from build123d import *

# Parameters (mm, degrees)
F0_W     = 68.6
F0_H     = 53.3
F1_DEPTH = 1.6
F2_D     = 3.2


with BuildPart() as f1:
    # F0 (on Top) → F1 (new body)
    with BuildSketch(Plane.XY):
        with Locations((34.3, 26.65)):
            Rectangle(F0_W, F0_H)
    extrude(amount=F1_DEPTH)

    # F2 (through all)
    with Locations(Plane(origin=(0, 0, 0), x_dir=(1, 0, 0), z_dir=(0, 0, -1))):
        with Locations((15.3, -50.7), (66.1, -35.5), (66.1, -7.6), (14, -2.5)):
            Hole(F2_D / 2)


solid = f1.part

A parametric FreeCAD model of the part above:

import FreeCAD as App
import Part
import Sketcher
Q = App.Units.Quantity

doc = App.newDocument("Part")
body = doc.addObject("PartDesign::Body", "Body")

# Sketch on XY plane
sketch1 = body.newObject("Sketcher::SketchObject", "Sketch")
sketch1.AttachmentSupport = (doc.getObject("XY_Plane"), [""])
sketch1.MapMode = "FlatFace"
sketch1.addGeometry(Part.LineSegment(App.Vector(0, 53, 0), App.Vector(0, 0, 0)), False)
sketch1.addGeometry(Part.LineSegment(App.Vector(0, 0, 0), App.Vector(69, 0, 0)), False)
sketch1.addGeometry(Part.LineSegment(App.Vector(69, 0, 0), App.Vector(69, 53, 0)), False)
sketch1.addGeometry(Part.LineSegment(App.Vector(69, 53, 0), App.Vector(0, 53, 0)), False)
sketch1.addConstraint(Sketcher.Constraint("Coincident", 0, 2, 1, 1))
sketch1.addConstraint(Sketcher.Constraint("Coincident", 1, 2, 2, 1))
sketch1.addConstraint(Sketcher.Constraint("Coincident", 2, 2, 3, 1))
sketch1.addConstraint(Sketcher.Constraint("Coincident", 3, 2, 0, 1))
sketch1.addConstraint(Sketcher.Constraint("Vertical", 0))
sketch1.addConstraint(Sketcher.Constraint("Horizontal", 1))
sketch1.addConstraint(Sketcher.Constraint("Vertical", 2))
sketch1.addConstraint(Sketcher.Constraint("Horizontal", 3))
sketch1.addConstraint(Sketcher.Constraint("Coincident", 0, 2, -1, 1))
sketch1.addConstraint(Sketcher.Constraint("DistanceX", 1, 1, 1, 2, Q("68.6 mm")))
sketch1.addConstraint(Sketcher.Constraint("DistanceY", 0, 2, 0, 1, Q("53.3 mm")))
pad1 = body.newObject("PartDesign::Pad", "Pad")
pad1.Profile = sketch1
pad1.Length = 1.6

# Sketch on XY plane
sketch2 = body.newObject("Sketcher::SketchObject", "Sketch001")
sketch2.AttachmentSupport = (doc.getObject("XY_Plane"), [""])
sketch2.MapMode = "FlatFace"
sketch2.addGeometry(Part.Circle(App.Vector(15.3, 50.7, 0), App.Vector(0, 0, 1), 1.6), False)
sketch2.addGeometry(Part.Circle(App.Vector(66.1, 35.5, 0), App.Vector(0, 0, 1), 1.6), False)
sketch2.addGeometry(Part.Circle(App.Vector(66.1, 7.6, 0), App.Vector(0, 0, 1), 1.6), False)
sketch2.addGeometry(Part.Circle(App.Vector(14, 2.5, 0), App.Vector(0, 0, 1), 1.6), False)
sketch2.addConstraint(Sketcher.Constraint("Equal", 0, 1))
sketch2.addConstraint(Sketcher.Constraint("Equal", 1, 2))
sketch2.addConstraint(Sketcher.Constraint("Equal", 2, 3))
sketch2.addConstraint(Sketcher.Constraint("Vertical", 1, 3, 2, 3))
sketch2.addConstraint(Sketcher.Constraint("Diameter", 0, Q("3.2 mm")))
sketch2.addConstraint(Sketcher.Constraint("DistanceX", -1, 1, 3, 3, Q("14 mm")))
sketch2.addConstraint(Sketcher.Constraint("DistanceY", 3, 3, 1, 3, Q("33 mm")))
sketch2.addConstraint(Sketcher.Constraint("DistanceX", -1, 1, 0, 3, Q("15.3 mm")))
sketch2.addConstraint(Sketcher.Constraint("DistanceY", -1, 1, 0, 3, Q("50.7 mm")))
sketch2.addConstraint(Sketcher.Constraint("DistanceX", -1, 1, 1, 3, Q("66.1 mm")))
sketch2.addConstraint(Sketcher.Constraint("DistanceY", -1, 1, 1, 3, Q("35.5 mm")))
sketch2.addConstraint(Sketcher.Constraint("DistanceY", -1, 1, 2, 3, Q("7.6 mm")))
doc.recompute()
hole = body.newObject("PartDesign::Hole", "Hole")
hole.Profile = sketch2
hole.ThreadType = "None"
hole.Diameter = 3.2
hole.DepthType = "ThroughAll"
hole.Reversed = True

doc.recompute()
